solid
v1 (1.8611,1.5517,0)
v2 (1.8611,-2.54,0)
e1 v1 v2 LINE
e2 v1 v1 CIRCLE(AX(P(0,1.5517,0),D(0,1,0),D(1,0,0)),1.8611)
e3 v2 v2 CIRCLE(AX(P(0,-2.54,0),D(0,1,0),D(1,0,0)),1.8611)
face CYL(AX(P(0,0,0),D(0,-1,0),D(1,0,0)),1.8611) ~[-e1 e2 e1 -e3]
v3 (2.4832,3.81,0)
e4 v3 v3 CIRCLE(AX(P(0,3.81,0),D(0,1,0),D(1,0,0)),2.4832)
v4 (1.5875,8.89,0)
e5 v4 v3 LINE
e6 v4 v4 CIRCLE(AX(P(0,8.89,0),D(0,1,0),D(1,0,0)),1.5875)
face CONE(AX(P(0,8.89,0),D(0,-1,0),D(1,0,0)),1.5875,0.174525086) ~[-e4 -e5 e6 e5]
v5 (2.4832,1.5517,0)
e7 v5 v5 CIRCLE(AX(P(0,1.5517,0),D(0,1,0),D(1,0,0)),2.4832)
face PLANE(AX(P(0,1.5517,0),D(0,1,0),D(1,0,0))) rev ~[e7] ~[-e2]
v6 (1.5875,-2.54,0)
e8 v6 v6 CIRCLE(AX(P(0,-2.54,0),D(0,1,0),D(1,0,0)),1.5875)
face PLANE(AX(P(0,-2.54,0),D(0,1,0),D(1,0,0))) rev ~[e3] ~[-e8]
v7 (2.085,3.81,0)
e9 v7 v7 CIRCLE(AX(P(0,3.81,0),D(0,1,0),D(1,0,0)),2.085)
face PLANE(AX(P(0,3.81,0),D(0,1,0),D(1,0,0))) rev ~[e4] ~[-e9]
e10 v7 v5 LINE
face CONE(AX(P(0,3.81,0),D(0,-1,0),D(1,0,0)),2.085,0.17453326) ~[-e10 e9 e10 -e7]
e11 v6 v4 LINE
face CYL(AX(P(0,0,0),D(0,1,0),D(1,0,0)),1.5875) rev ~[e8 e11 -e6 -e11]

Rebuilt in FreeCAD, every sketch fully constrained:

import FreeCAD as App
import Part
import Sketcher
from FreeCAD import Vector
Q = App.Units.Quantity

doc = App.newDocument("Part")
params = doc.addObject("Spreadsheet::Sheet", "Params")
for row, (alias, value) in enumerate([
    ("revolution_angle", "360 deg"),
], start=1):
    params.set(f"A{row}", alias)
    params.set(f"B{row}", "=" + value)
    params.setAlias(f"B{row}", alias)

body = doc.addObject("PartDesign::Body", "Body")

# Sketch on XY plane
sketch1 = body.newObject("Sketcher::SketchObject", "Sketch")
sketch1.AttachmentSupport = (doc.getObject("XY_Plane"), [""])
sketch1.MapMode = "FlatFace"
sketch1.addGeometry([
    Part.LineSegment(Vector(1.59, 8.89, 0), Vector(1.59, -2.54, 0)),  # 0
    Part.LineSegment(Vector(1.59, -2.54, 0), Vector(1.86, -2.54, 0)),  # 1
    Part.LineSegment(Vector(1.86, -2.54, 0), Vector(1.86, 1.55, 0)),  # 2
    Part.LineSegment(Vector(1.86, 1.55, 0), Vector(2.48, 1.55, 0)),  # 3
    Part.LineSegment(Vector(2.48, 1.55, 0), Vector(2.08, 3.81, 0)),  # 4
    Part.LineSegment(Vector(2.08, 3.81, 0), Vector(2.48, 3.81, 0)),  # 5
    Part.LineSegment(Vector(2.48, 3.81, 0), Vector(1.59, 8.89, 0)),  # 6
], False)
sketch1.addConstraint([
    Sketcher.Constraint("Coincident", 0, 2, 1, 1),
    Sketcher.Constraint("Coincident", 1, 2, 2, 1),
    Sketcher.Constraint("Coincident", 2, 2, 3, 1),
    Sketcher.Constraint("Coincident", 3, 2, 4, 1),
    Sketcher.Constraint("Coincident", 4, 2, 5, 1),
    Sketcher.Constraint("Coincident", 5, 2, 6, 1),
    Sketcher.Constraint("Coincident", 6, 2, 0, 1),
    Sketcher.Constraint("Vertical", 0),
    Sketcher.Constraint("Horizontal", 1),
    Sketcher.Constraint("Vertical", 2),
    Sketcher.Constraint("Horizontal", 3),
    Sketcher.Constraint("Horizontal", 5),
    Sketcher.Constraint("Parallel", 4, 6),
    Sketcher.Constraint("Vertical", 3, 2, 5, 2),
    Sketcher.Constraint("DistanceY", 0, 2, -1, 1, Q("0.1 in")),
    Sketcher.Constraint("DistanceY", -1, 1, 6, 2, Q("0.35 in")),
    Sketcher.Constraint("DistanceX", -1, 1, 0, 2, Q("0.0625 in")),
    Sketcher.Constraint("Angle", 4, Q("100 deg")),
    Sketcher.Constraint("DistanceX", 1, 1, 1, 2, Q("0.2736 mm")),
    Sketcher.Constraint("DistanceX", 5, 1, 5, 2, Q("0.3982 mm")),
    Sketcher.Constraint("DistanceY", -1, 1, 2, 2, Q("0.0611 in")),
])
revolution = body.newObject("PartDesign::Revolution", "Revolution")
revolution.Profile = sketch1
revolution.ReferenceAxis = (sketch1, ["V_Axis"])
revolution.setExpression("Angle", "Params.revolution_angle")

doc.recompute()
